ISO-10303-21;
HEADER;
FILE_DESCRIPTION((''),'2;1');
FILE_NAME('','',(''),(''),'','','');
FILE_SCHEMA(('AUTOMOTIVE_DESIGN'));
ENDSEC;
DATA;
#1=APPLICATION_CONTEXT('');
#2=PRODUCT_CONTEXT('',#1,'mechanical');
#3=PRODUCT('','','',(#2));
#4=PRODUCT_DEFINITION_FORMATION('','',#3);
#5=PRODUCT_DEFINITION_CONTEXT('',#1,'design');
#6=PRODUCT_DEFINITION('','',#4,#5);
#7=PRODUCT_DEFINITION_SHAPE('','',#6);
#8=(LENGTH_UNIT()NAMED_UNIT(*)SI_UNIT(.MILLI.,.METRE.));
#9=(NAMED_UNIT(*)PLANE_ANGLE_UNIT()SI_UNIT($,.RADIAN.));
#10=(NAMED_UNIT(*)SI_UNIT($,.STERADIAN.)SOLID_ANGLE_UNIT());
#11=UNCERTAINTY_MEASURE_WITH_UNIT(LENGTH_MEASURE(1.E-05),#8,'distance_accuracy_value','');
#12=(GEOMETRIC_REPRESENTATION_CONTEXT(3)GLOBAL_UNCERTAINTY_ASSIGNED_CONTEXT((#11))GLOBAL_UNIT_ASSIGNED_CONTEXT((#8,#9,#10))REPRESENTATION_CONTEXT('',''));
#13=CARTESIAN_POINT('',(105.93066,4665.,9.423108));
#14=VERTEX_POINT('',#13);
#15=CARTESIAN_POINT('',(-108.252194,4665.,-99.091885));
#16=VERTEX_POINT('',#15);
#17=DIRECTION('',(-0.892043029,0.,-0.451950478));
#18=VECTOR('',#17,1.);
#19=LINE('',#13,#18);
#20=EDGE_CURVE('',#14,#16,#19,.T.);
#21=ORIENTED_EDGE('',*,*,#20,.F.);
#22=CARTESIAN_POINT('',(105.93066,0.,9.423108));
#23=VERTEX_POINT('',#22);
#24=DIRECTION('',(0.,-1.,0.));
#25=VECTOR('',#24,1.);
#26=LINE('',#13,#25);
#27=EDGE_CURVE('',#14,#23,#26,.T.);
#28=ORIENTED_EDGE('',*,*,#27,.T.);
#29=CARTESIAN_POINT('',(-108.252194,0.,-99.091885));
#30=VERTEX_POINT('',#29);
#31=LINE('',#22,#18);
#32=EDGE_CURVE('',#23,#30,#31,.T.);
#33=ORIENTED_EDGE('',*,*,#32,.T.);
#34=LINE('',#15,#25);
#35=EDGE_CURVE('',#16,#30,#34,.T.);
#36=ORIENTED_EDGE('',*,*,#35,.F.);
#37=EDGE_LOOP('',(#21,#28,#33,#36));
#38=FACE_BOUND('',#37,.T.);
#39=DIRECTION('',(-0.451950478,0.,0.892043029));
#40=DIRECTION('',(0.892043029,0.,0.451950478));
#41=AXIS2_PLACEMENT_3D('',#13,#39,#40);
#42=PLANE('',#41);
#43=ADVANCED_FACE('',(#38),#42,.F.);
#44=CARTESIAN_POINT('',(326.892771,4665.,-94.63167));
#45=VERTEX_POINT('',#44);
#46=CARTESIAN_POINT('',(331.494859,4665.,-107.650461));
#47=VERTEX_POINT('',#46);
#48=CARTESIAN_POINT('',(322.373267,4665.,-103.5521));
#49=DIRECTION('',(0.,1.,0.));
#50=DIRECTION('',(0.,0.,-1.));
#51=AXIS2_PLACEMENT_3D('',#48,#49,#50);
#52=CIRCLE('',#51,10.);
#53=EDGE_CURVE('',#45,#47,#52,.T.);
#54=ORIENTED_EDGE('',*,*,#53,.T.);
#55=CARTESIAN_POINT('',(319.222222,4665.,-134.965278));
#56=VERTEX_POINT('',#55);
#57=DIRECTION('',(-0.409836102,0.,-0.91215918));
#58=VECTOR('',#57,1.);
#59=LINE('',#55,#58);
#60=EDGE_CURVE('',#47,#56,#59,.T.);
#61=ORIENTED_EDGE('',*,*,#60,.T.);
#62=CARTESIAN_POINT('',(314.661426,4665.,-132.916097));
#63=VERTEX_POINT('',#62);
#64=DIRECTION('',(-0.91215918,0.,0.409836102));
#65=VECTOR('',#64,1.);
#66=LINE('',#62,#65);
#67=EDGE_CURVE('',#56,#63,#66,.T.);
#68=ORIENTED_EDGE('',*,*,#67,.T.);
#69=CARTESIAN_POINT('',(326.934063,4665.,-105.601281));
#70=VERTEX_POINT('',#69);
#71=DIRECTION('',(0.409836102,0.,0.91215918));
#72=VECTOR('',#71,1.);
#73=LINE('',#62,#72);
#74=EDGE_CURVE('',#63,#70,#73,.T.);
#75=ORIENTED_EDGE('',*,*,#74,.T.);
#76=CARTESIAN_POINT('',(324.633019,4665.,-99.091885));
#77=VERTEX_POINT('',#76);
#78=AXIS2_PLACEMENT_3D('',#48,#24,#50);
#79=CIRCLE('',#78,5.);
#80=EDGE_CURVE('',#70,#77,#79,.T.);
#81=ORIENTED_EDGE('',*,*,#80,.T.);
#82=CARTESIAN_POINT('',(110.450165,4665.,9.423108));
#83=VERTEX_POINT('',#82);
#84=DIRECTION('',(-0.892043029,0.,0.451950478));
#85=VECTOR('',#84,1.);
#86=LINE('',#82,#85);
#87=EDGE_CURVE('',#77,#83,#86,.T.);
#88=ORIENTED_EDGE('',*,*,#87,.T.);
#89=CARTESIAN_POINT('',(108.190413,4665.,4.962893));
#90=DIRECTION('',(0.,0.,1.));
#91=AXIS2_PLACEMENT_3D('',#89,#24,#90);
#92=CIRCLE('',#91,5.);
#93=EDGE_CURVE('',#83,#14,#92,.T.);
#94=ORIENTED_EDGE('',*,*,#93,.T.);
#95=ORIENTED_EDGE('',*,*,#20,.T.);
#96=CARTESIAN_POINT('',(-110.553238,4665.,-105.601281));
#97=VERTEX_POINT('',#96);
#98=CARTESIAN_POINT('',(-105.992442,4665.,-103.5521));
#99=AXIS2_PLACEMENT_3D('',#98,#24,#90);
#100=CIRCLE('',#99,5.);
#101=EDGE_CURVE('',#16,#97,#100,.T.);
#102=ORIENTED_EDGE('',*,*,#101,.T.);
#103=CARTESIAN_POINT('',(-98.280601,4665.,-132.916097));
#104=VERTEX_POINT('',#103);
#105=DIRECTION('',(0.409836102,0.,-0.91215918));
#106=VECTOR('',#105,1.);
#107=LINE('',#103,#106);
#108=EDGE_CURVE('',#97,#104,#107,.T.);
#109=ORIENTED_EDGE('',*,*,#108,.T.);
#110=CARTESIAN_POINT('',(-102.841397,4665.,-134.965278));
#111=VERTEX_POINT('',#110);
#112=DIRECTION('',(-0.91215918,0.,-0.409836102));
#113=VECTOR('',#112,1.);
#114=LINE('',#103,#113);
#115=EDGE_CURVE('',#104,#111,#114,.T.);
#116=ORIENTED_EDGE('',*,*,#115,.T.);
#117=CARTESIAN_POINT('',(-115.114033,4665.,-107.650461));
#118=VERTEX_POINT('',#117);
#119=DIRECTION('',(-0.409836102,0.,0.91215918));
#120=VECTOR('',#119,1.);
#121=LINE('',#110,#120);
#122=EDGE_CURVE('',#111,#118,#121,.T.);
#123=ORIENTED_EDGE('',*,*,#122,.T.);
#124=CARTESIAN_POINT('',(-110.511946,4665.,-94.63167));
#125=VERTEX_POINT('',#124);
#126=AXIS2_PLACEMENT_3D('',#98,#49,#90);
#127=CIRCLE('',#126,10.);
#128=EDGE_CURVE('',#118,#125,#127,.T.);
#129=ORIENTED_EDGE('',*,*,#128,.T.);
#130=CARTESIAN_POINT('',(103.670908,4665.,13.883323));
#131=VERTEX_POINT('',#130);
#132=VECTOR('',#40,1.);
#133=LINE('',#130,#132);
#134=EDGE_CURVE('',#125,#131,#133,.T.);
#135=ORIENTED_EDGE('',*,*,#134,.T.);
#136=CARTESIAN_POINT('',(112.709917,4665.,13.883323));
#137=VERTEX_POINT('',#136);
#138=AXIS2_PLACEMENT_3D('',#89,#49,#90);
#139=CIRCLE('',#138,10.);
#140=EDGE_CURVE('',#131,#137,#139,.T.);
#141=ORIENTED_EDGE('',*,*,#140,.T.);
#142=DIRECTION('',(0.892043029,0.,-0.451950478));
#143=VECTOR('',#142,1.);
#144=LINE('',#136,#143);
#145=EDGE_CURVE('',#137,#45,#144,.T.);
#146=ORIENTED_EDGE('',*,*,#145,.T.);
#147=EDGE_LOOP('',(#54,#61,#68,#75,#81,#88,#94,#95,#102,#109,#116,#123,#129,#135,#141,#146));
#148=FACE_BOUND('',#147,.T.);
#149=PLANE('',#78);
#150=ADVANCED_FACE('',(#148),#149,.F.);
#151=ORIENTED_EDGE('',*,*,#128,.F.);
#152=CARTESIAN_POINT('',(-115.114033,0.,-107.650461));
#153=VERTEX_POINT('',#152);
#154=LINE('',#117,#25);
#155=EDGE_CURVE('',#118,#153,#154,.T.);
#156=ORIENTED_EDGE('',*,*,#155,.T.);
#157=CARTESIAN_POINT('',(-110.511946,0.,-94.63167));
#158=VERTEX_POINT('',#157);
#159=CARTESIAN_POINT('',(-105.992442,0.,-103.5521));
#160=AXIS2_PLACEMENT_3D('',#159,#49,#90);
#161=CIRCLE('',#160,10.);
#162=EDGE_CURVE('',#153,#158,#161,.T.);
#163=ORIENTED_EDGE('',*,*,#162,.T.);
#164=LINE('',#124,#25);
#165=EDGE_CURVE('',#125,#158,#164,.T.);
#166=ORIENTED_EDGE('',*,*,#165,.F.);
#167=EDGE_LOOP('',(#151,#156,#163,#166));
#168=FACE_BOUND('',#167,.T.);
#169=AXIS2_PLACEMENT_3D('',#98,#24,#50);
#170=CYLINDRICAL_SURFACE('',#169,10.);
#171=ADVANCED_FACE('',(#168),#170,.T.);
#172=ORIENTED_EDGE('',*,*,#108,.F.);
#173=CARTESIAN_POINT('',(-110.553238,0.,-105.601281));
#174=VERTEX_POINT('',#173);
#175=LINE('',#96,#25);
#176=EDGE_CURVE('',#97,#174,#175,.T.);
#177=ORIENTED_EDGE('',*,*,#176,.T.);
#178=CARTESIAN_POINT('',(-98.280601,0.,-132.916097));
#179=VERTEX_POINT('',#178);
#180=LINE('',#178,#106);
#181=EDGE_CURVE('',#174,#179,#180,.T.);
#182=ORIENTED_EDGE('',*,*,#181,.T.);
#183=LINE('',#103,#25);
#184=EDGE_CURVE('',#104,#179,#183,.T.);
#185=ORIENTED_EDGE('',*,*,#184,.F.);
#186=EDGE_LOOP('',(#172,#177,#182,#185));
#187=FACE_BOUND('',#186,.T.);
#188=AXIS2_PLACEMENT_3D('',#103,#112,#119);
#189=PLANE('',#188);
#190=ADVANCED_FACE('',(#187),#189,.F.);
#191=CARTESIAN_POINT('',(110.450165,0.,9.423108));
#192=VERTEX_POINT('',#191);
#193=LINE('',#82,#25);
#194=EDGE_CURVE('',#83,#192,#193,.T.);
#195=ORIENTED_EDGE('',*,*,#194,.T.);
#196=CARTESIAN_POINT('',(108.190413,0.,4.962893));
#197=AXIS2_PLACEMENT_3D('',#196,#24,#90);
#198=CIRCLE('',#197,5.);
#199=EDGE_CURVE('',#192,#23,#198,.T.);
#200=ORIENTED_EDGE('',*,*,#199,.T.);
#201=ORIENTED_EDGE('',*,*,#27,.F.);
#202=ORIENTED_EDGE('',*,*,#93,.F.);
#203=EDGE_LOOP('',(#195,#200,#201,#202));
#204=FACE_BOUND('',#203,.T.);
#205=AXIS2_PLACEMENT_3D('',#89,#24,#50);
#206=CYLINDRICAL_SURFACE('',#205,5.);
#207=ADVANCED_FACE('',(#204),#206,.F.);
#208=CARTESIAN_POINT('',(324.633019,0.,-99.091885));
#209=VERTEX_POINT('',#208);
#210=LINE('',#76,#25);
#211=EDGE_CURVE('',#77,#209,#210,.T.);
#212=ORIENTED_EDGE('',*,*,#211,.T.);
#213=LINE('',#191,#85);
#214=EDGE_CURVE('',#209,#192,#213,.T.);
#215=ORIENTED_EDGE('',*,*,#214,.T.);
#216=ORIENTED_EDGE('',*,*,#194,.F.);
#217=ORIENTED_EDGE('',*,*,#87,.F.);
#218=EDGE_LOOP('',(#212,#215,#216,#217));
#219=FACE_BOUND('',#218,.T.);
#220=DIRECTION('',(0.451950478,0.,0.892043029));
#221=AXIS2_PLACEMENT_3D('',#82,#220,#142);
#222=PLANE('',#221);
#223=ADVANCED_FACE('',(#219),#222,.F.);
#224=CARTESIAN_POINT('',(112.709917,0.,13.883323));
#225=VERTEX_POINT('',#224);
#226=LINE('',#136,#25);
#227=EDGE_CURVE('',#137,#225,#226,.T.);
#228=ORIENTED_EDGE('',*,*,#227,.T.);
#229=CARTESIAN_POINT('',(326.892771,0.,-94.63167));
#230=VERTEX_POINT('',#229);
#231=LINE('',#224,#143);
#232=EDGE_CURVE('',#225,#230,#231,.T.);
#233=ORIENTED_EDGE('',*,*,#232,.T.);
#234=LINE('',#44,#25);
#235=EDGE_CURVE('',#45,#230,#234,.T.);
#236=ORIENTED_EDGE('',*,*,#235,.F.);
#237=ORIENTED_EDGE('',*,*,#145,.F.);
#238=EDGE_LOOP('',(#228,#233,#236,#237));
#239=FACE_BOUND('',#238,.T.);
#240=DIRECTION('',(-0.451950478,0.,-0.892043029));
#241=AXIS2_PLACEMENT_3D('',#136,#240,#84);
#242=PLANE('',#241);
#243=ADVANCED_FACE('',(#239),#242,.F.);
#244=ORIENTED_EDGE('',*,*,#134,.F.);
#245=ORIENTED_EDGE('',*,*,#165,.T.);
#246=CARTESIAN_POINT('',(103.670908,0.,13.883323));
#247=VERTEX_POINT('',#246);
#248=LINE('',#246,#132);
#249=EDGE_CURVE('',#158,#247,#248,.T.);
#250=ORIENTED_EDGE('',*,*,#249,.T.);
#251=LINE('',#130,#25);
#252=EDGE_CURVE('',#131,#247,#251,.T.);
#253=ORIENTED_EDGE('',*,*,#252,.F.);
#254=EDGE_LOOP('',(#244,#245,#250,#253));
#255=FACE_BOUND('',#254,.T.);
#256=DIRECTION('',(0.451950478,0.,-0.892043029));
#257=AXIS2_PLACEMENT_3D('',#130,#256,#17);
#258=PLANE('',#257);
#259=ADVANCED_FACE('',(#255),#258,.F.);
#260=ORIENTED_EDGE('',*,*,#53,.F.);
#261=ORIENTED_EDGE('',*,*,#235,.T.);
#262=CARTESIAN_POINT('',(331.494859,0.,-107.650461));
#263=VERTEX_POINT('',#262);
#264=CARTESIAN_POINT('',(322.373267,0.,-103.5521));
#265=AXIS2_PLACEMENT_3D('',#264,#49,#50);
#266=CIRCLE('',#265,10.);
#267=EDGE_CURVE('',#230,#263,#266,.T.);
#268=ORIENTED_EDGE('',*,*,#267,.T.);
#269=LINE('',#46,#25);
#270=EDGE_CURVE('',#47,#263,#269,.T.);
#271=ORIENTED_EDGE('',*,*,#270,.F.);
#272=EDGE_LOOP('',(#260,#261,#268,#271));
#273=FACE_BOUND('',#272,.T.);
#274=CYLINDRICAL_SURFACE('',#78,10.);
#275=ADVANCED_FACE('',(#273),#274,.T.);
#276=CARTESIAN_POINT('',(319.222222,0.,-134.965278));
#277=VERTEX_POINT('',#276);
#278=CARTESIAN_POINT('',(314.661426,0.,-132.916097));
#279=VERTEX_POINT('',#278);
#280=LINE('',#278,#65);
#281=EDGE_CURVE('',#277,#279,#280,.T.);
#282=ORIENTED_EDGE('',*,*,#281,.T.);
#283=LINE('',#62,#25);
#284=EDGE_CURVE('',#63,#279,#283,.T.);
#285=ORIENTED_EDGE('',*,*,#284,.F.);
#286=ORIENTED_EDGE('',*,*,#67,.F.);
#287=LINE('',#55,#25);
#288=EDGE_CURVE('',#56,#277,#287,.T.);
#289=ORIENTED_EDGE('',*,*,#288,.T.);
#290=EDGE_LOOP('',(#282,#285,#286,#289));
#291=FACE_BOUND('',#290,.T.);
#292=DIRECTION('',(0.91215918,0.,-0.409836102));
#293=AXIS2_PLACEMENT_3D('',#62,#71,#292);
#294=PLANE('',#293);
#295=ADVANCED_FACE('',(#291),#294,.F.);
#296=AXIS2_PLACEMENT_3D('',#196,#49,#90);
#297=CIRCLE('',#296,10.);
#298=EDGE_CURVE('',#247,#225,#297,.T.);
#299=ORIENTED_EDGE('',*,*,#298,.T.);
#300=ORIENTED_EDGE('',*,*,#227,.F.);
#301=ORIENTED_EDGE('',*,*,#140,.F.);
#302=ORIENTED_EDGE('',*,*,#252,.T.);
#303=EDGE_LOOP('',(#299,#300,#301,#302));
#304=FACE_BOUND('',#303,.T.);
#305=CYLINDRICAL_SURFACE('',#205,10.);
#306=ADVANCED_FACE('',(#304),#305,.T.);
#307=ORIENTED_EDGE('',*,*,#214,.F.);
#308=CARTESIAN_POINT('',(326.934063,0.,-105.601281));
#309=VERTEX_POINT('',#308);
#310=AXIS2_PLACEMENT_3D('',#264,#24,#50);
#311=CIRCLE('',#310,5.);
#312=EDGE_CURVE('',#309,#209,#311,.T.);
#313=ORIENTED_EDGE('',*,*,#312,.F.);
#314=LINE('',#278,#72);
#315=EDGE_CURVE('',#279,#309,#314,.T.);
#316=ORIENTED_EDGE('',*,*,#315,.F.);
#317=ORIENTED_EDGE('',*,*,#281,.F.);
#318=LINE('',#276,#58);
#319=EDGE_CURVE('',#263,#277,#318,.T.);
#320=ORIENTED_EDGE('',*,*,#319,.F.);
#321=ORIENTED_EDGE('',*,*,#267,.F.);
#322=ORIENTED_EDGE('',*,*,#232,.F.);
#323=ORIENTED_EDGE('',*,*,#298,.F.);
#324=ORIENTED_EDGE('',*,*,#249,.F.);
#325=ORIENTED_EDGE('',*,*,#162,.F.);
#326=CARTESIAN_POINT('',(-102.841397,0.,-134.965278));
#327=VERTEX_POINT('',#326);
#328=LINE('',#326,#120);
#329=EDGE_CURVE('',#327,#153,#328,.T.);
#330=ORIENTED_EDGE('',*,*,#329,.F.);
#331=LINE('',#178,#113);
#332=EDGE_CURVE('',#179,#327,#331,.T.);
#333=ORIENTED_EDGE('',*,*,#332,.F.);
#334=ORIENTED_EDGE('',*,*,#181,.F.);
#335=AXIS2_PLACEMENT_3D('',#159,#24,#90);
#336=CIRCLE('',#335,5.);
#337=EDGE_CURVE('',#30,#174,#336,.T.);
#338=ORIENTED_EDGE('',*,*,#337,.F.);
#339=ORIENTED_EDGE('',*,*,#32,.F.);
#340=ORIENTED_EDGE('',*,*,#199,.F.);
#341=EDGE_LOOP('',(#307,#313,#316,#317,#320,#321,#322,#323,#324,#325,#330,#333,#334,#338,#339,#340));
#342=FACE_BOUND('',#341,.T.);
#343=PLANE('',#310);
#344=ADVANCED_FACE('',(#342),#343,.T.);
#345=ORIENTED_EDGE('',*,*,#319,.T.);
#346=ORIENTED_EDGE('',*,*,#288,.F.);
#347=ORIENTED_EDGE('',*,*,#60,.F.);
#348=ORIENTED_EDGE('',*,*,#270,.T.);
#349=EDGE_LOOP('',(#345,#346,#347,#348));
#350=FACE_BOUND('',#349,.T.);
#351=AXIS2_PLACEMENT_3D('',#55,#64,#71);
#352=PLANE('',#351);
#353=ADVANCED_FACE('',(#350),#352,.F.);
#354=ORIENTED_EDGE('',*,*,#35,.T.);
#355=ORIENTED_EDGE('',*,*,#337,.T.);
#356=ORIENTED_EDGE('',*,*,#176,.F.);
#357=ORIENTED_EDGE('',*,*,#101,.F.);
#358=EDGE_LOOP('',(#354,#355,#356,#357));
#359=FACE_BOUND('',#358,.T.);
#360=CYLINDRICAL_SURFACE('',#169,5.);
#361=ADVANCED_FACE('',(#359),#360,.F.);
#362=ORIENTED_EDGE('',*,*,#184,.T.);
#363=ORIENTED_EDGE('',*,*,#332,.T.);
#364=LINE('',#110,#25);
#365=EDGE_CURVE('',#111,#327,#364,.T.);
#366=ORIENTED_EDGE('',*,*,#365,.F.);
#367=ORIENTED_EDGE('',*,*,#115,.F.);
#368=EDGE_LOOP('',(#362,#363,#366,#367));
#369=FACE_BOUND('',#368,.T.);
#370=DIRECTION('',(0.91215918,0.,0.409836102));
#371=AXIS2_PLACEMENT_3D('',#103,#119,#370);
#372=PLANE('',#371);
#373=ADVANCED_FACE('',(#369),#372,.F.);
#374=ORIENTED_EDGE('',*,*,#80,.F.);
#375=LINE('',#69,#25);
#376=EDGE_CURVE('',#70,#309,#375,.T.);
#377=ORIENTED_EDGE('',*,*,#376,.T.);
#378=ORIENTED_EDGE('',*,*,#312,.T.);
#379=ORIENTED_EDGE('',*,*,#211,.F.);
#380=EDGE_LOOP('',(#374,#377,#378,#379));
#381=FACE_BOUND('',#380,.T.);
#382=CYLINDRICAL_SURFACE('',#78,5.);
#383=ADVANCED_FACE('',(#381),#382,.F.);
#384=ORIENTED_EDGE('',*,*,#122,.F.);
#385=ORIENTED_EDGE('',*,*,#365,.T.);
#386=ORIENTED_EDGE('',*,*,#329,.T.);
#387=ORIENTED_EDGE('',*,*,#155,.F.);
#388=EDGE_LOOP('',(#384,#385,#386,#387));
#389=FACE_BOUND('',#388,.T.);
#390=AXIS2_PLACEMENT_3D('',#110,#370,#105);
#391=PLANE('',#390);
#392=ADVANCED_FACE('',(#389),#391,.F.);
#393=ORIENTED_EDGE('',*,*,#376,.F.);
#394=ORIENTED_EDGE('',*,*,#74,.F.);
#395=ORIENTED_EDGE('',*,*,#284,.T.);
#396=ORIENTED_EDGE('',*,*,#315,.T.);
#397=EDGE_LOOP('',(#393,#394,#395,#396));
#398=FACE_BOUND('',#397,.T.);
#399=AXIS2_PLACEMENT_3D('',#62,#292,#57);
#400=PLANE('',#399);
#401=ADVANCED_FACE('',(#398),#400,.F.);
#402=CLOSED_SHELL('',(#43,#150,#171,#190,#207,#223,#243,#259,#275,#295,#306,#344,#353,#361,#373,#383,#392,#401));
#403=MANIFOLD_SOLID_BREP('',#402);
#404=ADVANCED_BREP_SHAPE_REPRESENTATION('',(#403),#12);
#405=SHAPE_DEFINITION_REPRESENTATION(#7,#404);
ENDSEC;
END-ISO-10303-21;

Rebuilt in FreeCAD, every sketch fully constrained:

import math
import FreeCAD as App
import Part
import Sketcher

V = App.Vector
Q = App.Units.Quantity

doc = App.newDocument("Part")
body = doc.addObject("PartDesign::Body", "Body")

# Sketch on XZ plane
sketch1 = doc.addObject("Sketcher::SketchObject", "Sketch")
body.addObject(sketch1)
sketch1.AttachmentSupport = (doc.XZ_Plane, [""])
sketch1.MapMode = "FlatFace"
sketch1.addGeometry([
    Part.LineSegment(V(331.494859, -107.650461, 0), V(319.222222, -134.965278, 0)),  # 0
    Part.LineSegment(V(319.222222, -134.965278, 0), V(314.661426, -132.916097, 0)),  # 1
    Part.LineSegment(V(314.661426, -132.916097, 0), V(326.934063, -105.601281, 0)),  # 2
    Part.ArcOfCircle(Part.Circle(V(322.373267, -103.5521, 0), V(0, 0, 1), 5), math.radians(-24.194539), math.radians(63.131106)),  # 3
    Part.LineSegment(V(324.633019, -99.091885, 0), V(110.450165, 9.423108, 0)),  # 4
    Part.ArcOfCircle(Part.Circle(V(108.190413, 4.962893, 0), V(0, 0, 1), 5), math.radians(63.131106), math.radians(116.868894)),  # 5
    Part.LineSegment(V(105.93066, 9.423108, 0), V(-108.252194, -99.091885, 0)),  # 6
    Part.ArcOfCircle(Part.Circle(V(-105.992442, -103.5521, 0), V(0, 0, 1), 5), math.radians(116.868894), math.radians(204.194539)),  # 7
    Part.LineSegment(V(-110.553238, -105.601281, 0), V(-98.280601, -132.916097, 0)),  # 8
    Part.LineSegment(V(-98.280601, -132.916097, 0), V(-102.841397, -134.965278, 0)),  # 9
    Part.LineSegment(V(-102.841397, -134.965278, 0), V(-115.114033, -107.650461, 0)),  # 10
    Part.ArcOfCircle(Part.Circle(V(-105.992442, -103.5521, 0), V(0, 0, 1), 10), math.radians(116.868894), math.radians(204.194539)),  # 11
    Part.LineSegment(V(-110.511946, -94.63167, 0), V(103.670908, 13.883323, 0)),  # 12
    Part.ArcOfCircle(Part.Circle(V(108.190413, 4.962893, 0), V(0, 0, 1), 10), math.radians(63.131106), math.radians(116.868894)),  # 13
    Part.LineSegment(V(112.709917, 13.883323, 0), V(326.892771, -94.63167, 0)),  # 14
    Part.ArcOfCircle(Part.Circle(V(322.373267, -103.5521, 0), V(0, 0, 1), 10), math.radians(-24.194539), math.radians(63.131106)),  # 15
], False)
sketch1.addConstraint([
    Sketcher.Constraint("Coincident", 0, 2, 1, 1),
    Sketcher.Constraint("Coincident", 1, 2, 2, 1),
    Sketcher.Constraint("Tangent", 2, 2, 3, 1),
    Sketcher.Constraint("Tangent", 3, 2, 4, 1),
    Sketcher.Constraint("Tangent", 4, 2, 5, 1),
    Sketcher.Constraint("Tangent", 5, 2, 6, 1),
    Sketcher.Constraint("Tangent", 6, 2, 7, 1),
    Sketcher.Constraint("Tangent", 7, 2, 8, 1),
    Sketcher.Constraint("Coincident", 8, 2, 9, 1),
    Sketcher.Constraint("Coincident", 9, 2, 10, 1),
    Sketcher.Constraint("Tangent", 10, 2, 11, 2),
    Sketcher.Constraint("Tangent", 11, 1, 12, 1),
    Sketcher.Constraint("Tangent", 12, 2, 13, 2),
    Sketcher.Constraint("Tangent", 13, 1, 14, 1),
    Sketcher.Constraint("Tangent", 14, 2, 15, 2),
    Sketcher.Constraint("Tangent", 15, 1, 0, 1),
    Sketcher.Constraint("Coincident", 11, 3, 7, 3),
    Sketcher.Constraint("Coincident", 13, 3, 5, 3),
    Sketcher.Constraint("Coincident", 15, 3, 3, 3),
    Sketcher.Constraint("Equal", 3, 5),
    Sketcher.Constraint("Equal", 5, 7),
    Sketcher.Constraint("Equal", 11, 13),
    Sketcher.Constraint("Equal", 13, 15),
    Sketcher.Constraint("Perpendicular", 0, 1),
    Sketcher.Constraint("Perpendicular", 1, 2),
    Sketcher.Constraint("Perpendicular", 8, 9),
    Sketcher.Constraint("Perpendicular", 9, 10),
    Sketcher.Constraint("Horizontal", 3, 3, 7, 3),
    Sketcher.Constraint("Horizontal", 2, 2, 7, 2),
    Sketcher.Constraint("Horizontal", 1, 2, 8, 2),
    Sketcher.Constraint("Equal", 4, 6),
    Sketcher.Constraint("Radius", 3, Q("5 mm")),
    Sketcher.Constraint("Radius", 11, Q("10 mm")),
    Sketcher.Constraint("DistanceY", 3, 3, -1, 1, Q("103.5521 mm")),
    Sketcher.Constraint("DistanceX", 8, 2, -1, 1, Q("98.280601 mm")),
    Sketcher.Constraint("DistanceX", 4, 2, 3, 3, Q("211.923102 mm")),
    Sketcher.Constraint("Distance", 0, Q("29.94523 mm")),
    Sketcher.Constraint("DistanceX", 7, 3, -1, 1, Q("105.992442 mm")),
    Sketcher.Constraint("DistanceX", -1, 1, 3, 2, Q("324.633019 mm")),
])
pad1 = doc.addObject("PartDesign::Pad", "Pad")
body.addObject(pad1)
pad1.Profile = sketch1
pad1.Length = 4665
pad1.Reversed = True

doc.recompute()
